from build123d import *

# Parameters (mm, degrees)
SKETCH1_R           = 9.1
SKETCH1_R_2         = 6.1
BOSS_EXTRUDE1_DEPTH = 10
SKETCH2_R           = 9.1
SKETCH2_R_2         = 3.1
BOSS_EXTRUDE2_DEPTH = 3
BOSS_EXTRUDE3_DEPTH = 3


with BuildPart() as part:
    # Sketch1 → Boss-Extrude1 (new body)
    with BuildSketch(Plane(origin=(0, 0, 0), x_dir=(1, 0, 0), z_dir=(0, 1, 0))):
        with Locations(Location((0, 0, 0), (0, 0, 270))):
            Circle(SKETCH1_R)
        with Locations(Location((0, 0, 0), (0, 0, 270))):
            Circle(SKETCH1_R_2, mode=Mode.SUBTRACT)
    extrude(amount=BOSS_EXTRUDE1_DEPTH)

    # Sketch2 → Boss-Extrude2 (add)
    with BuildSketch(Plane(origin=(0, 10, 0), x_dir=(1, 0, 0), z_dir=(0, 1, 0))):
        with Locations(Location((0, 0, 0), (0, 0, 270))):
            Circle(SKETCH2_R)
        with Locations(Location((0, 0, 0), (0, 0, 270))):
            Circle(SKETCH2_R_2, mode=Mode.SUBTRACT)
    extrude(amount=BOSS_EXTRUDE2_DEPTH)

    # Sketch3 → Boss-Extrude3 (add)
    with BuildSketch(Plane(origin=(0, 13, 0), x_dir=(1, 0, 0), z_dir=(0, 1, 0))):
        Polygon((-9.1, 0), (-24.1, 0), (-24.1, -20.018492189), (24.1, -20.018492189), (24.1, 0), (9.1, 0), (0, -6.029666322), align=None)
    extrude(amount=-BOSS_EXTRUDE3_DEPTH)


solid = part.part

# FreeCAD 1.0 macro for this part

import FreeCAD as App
import Part
import Sketcher
from FreeCAD import Vector
Q = App.Units.Quantity

doc = App.newDocument("Part")
body = doc.addObject("PartDesign::Body", "Body")

# Sketch on XZ plane
sketch1 = body.newObject("Sketcher::SketchObject", "Sketch")
sketch1.AttachmentSupport = (doc.getObject("XZ_Plane"), [""])
sketch1.MapMode = "FlatFace"
sketch1.addGeometry([
    Part.Circle(Vector(0, 0, 0), Vector(0, 0, 1), 9),
    Part.Circle(Vector(0, 0, 0), Vector(0, 0, 1), 6),
], False)
sketch1.addConstraint([
    Sketcher.Constraint("Coincident", 0, 3, -1, 1),
    Sketcher.Constraint("Coincident", 1, 3, -1, 1),
    Sketcher.Constraint("Diameter", 0, Q("18.2 mm")),
    Sketcher.Constraint("Diameter", 1, Q("12.2 mm")),
])
pad1 = body.newObject("PartDesign::Pad", "Pad")
pad1.Profile = sketch1
pad1.Length = 10
pad1.Reversed = True

# Sketch on XZ plane
sketch2 = body.newObject("Sketcher::SketchObject", "Sketch001")
sketch2.AttachmentSupport = (doc.getObject("XZ_Plane"), [""])
sketch2.MapMode = "FlatFace"
sketch2.AttachmentOffset = App.Placement(Vector(0, 0, -10), App.Rotation())
sketch2.addGeometry([
    Part.Circle(Vector(0, 0, 0), Vector(0, 0, 1), 9.1),
    Part.Circle(Vector(0, 0, 0), Vector(0, 0, 1), 3.1),
], False)
sketch2.addConstraint([
    Sketcher.Constraint("Coincident", 0, 3, -1, 1),
    Sketcher.Constraint("Coincident", 1, 3, -1, 1),
    Sketcher.Constraint("Diameter", 0, Q("18.2 mm")),
    Sketcher.Constraint("Diameter", 1, Q("6.2 mm")),
])
pad2 = body.newObject("PartDesign::Pad", "Pad001")
pad2.Profile = sketch2
pad2.Length = 3
pad2.Reversed = True

# Sketch on XZ plane
sketch3 = body.newObject("Sketcher::SketchObject", "Sketch002")
sketch3.AttachmentSupport = (doc.getObject("XZ_Plane"), [""])
sketch3.MapMode = "FlatFace"
sketch3.AttachmentOffset = App.Placement(Vector(0, 0, -13), App.Rotation())
sketch3.addGeometry([
    Part.LineSegment(Vector(-9, 0, 0), Vector(-24, 0, 0)),  # 0
    Part.LineSegment(Vector(-24, 0, 0), Vector(-24, 20, 0)),  # 1
    Part.LineSegment(Vector(-24, 20, 0), Vector(24, 20, 0)),  # 2
    Part.LineSegment(Vector(24, 20, 0), Vector(24, 0, 0)),  # 3
    Part.LineSegment(Vector(24, 0, 0), Vector(9, 0, 0)),  # 4
    Part.LineSegment(Vector(9, 0, 0), Vector(0, 6, 0)),  # 5
    Part.LineSegment(Vector(0, 6, 0), Vector(-9, 0, 0)),  # 6
], False)
sketch3.addConstraint([
    Sketcher.Constraint("Coincident", 0, 2, 1, 1),
    Sketcher.Constraint("Coincident", 1, 2, 2, 1),
    Sketcher.Constraint("Coincident", 2, 2, 3, 1),
    Sketcher.Constraint("Coincident", 3, 2, 4, 1),
    Sketcher.Constraint("Coincident", 4, 2, 5, 1),
    Sketcher.Constraint("Coincident", 5, 2, 6, 1),
    Sketcher.Constraint("Coincident", 6, 2, 0, 1),
    Sketcher.Constraint("Horizontal", 0),
    Sketcher.Constraint("Vertical", 1),
    Sketcher.Constraint("Horizontal", 2),
    Sketcher.Constraint("Vertical", 3),
    Sketcher.Constraint("Horizontal", 4),
    Sketcher.Constraint("Symmetric", 0, 2, 3, 2, -1, 1),
    Sketcher.Constraint("Symmetric", 4, 2, 6, 2, -2),
    Sketcher.Constraint("PointOnObject", 5, 2, -2),
    Sketcher.Constraint("DistanceX", 0, 2, 0, 1, Q("15 mm")),
    Sketcher.Constraint("DistanceX", 2, 1, 2, 2, Q("48.2 mm")),
    Sketcher.Constraint("Distance", 5, Q("10.916358 mm")),
    Sketcher.Constraint("DistanceY", 1, 1, 1, 2, Q("20.018492 mm")),
])
pad3 = body.newObject("PartDesign::Pad", "Pad002")
pad3.Profile = sketch3
pad3.Length = 3

doc.recompute()
